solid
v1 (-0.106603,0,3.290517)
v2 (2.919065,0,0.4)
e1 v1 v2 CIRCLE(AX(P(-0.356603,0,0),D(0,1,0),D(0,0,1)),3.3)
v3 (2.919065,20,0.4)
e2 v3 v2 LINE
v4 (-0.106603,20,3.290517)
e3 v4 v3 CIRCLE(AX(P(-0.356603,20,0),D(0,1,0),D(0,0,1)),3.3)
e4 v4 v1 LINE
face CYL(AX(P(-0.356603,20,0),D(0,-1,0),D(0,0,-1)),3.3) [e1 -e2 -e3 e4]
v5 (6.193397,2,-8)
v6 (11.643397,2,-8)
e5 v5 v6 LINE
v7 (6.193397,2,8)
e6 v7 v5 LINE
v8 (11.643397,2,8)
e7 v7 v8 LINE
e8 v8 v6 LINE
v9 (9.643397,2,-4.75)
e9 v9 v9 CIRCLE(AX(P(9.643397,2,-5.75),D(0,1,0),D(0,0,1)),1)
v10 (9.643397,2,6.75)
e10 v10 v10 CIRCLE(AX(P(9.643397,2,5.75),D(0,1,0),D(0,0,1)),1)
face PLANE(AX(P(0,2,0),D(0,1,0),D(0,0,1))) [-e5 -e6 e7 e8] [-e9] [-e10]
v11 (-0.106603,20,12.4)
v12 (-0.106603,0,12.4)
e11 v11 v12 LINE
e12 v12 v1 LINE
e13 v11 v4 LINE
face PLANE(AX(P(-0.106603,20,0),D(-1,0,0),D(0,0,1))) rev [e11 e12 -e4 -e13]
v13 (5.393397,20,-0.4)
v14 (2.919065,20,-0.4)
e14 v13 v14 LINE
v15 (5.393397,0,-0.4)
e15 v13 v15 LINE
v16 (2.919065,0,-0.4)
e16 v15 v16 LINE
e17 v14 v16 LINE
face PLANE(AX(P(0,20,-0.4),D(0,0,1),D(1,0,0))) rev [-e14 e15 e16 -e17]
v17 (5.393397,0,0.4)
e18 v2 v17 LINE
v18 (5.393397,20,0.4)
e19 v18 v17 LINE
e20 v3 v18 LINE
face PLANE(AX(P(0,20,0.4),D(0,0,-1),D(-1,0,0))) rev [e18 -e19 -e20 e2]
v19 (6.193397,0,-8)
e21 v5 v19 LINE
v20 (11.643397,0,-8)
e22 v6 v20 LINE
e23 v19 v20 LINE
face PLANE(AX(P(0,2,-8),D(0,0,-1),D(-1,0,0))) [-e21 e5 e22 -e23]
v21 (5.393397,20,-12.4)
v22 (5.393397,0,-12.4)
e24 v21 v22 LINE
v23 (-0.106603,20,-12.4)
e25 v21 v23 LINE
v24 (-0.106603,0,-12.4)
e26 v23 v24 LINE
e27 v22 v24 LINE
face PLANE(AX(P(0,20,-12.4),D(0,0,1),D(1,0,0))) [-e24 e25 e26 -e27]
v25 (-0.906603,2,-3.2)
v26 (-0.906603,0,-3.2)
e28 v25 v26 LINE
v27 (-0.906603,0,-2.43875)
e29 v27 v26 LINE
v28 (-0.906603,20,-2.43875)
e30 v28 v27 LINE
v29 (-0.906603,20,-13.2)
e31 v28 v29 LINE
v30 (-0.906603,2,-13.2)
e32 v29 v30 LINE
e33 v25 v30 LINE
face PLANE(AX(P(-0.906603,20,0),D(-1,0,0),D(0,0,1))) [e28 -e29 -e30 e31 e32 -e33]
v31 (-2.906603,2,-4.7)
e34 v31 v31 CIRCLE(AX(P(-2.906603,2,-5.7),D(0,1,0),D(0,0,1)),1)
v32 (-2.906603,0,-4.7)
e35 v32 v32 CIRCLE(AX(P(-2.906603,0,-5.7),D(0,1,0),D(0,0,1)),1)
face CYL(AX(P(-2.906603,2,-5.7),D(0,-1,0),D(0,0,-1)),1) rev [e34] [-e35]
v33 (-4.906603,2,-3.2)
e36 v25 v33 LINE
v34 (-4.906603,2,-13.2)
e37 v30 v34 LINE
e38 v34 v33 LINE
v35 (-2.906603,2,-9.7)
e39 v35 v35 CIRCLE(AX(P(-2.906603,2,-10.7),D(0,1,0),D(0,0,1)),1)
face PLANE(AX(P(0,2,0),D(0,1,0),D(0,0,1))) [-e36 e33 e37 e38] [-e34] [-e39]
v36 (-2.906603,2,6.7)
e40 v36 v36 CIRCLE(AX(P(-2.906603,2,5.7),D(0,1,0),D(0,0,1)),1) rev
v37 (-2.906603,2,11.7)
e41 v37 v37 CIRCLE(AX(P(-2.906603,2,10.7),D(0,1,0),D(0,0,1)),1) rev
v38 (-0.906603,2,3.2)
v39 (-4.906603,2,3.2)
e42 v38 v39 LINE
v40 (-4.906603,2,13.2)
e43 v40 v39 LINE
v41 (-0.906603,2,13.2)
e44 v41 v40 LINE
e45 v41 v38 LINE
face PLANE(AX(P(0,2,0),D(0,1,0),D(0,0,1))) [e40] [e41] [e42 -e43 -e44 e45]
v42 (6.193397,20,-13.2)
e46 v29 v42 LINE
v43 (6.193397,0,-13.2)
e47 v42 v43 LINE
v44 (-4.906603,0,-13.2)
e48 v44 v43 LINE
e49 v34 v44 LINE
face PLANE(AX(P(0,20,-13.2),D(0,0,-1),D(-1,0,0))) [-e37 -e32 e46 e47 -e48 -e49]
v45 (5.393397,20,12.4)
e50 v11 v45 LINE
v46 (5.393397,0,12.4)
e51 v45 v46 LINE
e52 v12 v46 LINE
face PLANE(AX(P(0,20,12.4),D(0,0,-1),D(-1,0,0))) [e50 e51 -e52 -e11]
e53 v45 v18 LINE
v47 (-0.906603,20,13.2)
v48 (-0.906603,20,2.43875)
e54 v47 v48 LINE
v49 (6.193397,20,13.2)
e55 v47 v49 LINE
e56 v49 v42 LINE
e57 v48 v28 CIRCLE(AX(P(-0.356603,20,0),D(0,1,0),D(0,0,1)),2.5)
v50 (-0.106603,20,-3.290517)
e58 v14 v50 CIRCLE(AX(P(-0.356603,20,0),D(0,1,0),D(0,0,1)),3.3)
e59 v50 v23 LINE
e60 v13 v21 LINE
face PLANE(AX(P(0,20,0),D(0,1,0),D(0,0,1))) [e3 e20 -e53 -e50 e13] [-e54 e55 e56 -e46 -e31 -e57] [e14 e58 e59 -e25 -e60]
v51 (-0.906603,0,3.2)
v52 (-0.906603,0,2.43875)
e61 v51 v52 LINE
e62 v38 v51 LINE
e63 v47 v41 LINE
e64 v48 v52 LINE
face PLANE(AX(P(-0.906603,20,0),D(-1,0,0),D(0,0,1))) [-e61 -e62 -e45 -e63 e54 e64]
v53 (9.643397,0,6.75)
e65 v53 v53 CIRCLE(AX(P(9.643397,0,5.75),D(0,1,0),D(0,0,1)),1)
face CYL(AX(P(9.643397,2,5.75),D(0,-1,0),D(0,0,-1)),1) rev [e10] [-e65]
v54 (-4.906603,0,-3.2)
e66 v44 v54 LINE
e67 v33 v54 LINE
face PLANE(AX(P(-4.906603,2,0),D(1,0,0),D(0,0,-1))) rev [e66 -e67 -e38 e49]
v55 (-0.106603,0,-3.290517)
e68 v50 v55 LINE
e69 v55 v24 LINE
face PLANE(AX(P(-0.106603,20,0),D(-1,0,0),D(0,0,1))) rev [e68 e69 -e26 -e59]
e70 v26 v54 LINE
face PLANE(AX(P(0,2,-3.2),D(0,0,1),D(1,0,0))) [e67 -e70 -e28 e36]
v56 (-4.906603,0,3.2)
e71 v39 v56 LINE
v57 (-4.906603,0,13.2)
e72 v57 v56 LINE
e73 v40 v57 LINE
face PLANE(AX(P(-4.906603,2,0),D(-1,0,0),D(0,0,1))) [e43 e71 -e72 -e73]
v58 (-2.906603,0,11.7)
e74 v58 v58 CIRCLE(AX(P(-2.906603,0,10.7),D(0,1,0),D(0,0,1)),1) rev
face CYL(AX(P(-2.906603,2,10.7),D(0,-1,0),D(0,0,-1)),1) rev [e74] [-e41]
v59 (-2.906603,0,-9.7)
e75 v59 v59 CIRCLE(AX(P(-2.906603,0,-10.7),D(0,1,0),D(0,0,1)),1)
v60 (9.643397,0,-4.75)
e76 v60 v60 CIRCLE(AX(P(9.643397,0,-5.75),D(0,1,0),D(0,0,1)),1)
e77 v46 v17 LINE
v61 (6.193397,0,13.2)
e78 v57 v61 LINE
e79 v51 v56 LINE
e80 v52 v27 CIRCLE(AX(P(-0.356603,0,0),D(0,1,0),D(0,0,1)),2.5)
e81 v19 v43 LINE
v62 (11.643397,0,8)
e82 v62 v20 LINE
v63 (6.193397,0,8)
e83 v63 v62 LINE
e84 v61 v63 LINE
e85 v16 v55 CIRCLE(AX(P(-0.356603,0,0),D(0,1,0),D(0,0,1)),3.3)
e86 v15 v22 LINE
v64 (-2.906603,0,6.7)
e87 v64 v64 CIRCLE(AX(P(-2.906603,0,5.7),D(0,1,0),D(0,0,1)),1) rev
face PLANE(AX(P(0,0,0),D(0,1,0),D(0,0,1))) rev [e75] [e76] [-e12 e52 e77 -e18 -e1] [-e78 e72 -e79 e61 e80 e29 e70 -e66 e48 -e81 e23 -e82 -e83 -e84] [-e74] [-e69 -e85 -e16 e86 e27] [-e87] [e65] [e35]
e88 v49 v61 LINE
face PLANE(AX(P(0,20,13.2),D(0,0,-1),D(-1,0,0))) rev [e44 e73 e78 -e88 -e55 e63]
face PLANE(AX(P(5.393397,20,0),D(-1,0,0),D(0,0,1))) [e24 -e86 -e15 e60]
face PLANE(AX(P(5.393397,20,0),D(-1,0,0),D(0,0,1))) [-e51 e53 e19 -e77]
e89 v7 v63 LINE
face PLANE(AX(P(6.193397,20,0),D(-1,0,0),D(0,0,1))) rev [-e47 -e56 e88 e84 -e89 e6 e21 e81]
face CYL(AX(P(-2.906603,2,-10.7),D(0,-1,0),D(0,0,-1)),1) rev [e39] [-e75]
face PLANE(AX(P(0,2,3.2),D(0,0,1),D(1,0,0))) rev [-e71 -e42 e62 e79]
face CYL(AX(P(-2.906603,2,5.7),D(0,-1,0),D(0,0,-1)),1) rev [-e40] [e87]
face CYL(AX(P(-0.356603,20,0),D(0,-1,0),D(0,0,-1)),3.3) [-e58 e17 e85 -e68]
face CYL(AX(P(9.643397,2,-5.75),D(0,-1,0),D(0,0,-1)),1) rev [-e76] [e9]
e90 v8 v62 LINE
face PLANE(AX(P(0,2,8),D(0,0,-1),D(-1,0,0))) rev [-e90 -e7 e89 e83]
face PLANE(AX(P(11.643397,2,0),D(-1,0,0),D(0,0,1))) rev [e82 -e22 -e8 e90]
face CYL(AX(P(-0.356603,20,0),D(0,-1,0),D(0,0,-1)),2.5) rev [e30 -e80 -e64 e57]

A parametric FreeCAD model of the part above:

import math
import FreeCAD as App
import Part
import Sketcher

V = App.Vector

doc = App.newDocument("Part")
body = doc.addObject("PartDesign::Body", "Body")

sketch1 = body.newObject("Sketcher::SketchObject", "Sketch")
sketch1.AttachmentSupport = (doc.getObject("XZ_Plane"), [""])
sketch1.MapMode = "FlatFace"
sketch1.addGeometry(Part.ArcOfCircle(Part.Circle(V(-0.4, 0, 0), V(0, 0, 1), 2.5), math.radians(-103), math.radians(0)), False)
sketch1.addGeometry(Part.ArcOfCircle(Part.Circle(V(-0.4, 0, 0), V(0, 0, 1), 2.5), math.radians(0), math.radians(103)), False)
sketch1.addGeometry(Part.LineSegment(V(-0.9, 2.4, 0), V(-0.9, 13.2, 0)), False)
sketch1.addGeometry(Part.LineSegment(V(-0.9, 13.2, 0), V(6.2, 13.2, 0)), False)
sketch1.addGeometry(Part.LineSegment(V(6.2, 13.2, 0), V(6.2, -13.2, 0)), False)
sketch1.addGeometry(Part.LineSegment(V(6.2, -13.2, 0), V(-0.9, -13.2, 0)), False)
sketch1.addGeometry(Part.LineSegment(V(-0.9, -13.2, 0), V(-0.9, -2.4, 0)), False)
sketch1.addGeometry(Part.LineSegment(V(-0.1, -12.4, 0), V(5.4, -12.4, 0)), False)
sketch1.addGeometry(Part.LineSegment(V(5.4, -12.4, 0), V(5.4, -0.4, 0)), False)
sketch1.addGeometry(Part.LineSegment(V(5.4, -0.4, 0), V(2.9, -0.4, 0)), False)
sketch1.addGeometry(Part.ArcOfCircle(Part.Circle(V(-0.4, 0, 0), V(0, 0, 1), 3.3), math.radians(-86), math.radians(-7)), False)
sketch1.addGeometry(Part.LineSegment(V(-0.1, -3.3, 0), V(-0.1, -12.4, 0)), False)
sketch1.addGeometry(Part.LineSegment(V(5.4, 12.4, 0), V(-0.1, 12.4, 0)), False)
sketch1.addGeometry(Part.LineSegment(V(-0.1, 12.4, 0), V(-0.1, 3.3, 0)), False)
sketch1.addGeometry(Part.ArcOfCircle(Part.Circle(V(-0.4, 0, 0), V(0, 0, 1), 3.3), math.radians(7), math.radians(86)), False)
sketch1.addGeometry(Part.LineSegment(V(2.9, 0.4, 0), V(5.4, 0.4, 0)), False)
sketch1.addGeometry(Part.LineSegment(V(5.4, 0.4, 0), V(5.4, 12.4, 0)), False)
sketch1.addConstraint(Sketcher.Constraint("Tangent", 0, 2, 1, 1))
sketch1.addConstraint(Sketcher.Constraint("Coincident", 1, 2, 2, 1))
sketch1.addConstraint(Sketcher.Constraint("Coincident", 2, 2, 3, 1))
sketch1.addConstraint(Sketcher.Constraint("Coincident", 3, 2, 4, 1))
sketch1.addConstraint(Sketcher.Constraint("Coincident", 4, 2, 5, 1))
sketch1.addConstraint(Sketcher.Constraint("Coincident", 5, 2, 6, 1))
sketch1.addConstraint(Sketcher.Constraint("Coincident", 6, 2, 0, 1))
sketch1.addConstraint(Sketcher.Constraint("Coincident", 7, 2, 8, 1))
sketch1.addConstraint(Sketcher.Constraint("Coincident", 8, 2, 9, 1))
sketch1.addConstraint(Sketcher.Constraint("Coincident", 9, 2, 10, 2))
sketch1.addConstraint(Sketcher.Constraint("Coincident", 10, 1, 11, 1))
sketch1.addConstraint(Sketcher.Constraint("Coincident", 11, 2, 7, 1))
sketch1.addConstraint(Sketcher.Constraint("Coincident", 12, 2, 13, 1))
sketch1.addConstraint(Sketcher.Constraint("Coincident", 13, 2, 14, 2))
sketch1.addConstraint(Sketcher.Constraint("Coincident", 14, 1, 15, 1))
sketch1.addConstraint(Sketcher.Constraint("Coincident", 15, 2, 16, 1))
sketch1.addConstraint(Sketcher.Constraint("Coincident", 16, 2, 12, 1))
sketch1.addConstraint(Sketcher.Constraint("Vertical", 2))
sketch1.addConstraint(Sketcher.Constraint("Horizontal", 3))
sketch1.addConstraint(Sketcher.Constraint("Vertical", 4))
sketch1.addConstraint(Sketcher.Constraint("Horizontal", 5))
sketch1.addConstraint(Sketcher.Constraint("Vertical", 6))
sketch1.addConstraint(Sketcher.Constraint("Horizontal", 7))
sketch1.addConstraint(Sketcher.Constraint("Vertical", 8))
sketch1.addConstraint(Sketcher.Constraint("Horizontal", 9))
sketch1.addConstraint(Sketcher.Constraint("Vertical", 11))
sketch1.addConstraint(Sketcher.Constraint("Horizontal", 12))
sketch1.addConstraint(Sketcher.Constraint("Vertical", 13))
sketch1.addConstraint(Sketcher.Constraint("Horizontal", 15))
sketch1.addConstraint(Sketcher.Constraint("Vertical", 16))
sketch1.addConstraint(Sketcher.Constraint("Coincident", 10, 3, 0, 3))
sketch1.addConstraint(Sketcher.Constraint("Coincident", 14, 3, 0, 3))
sketch1.addConstraint(Sketcher.Constraint("Equal", 0, 1))
sketch1.addConstraint(Sketcher.Constraint("Equal", 10, 14))
sketch1.addConstraint(Sketcher.Constraint("Symmetric", 2, 2, 5, 2, -1))
sketch1.addConstraint(Sketcher.Constraint("Symmetric", 11, 2, 12, 2, -1))
sketch1.addConstraint(Sketcher.Constraint("Symmetric", 9, 2, 14, 1, -1))
sketch1.addConstraint(Sketcher.Constraint("PointOnObject", 0, 2, -1))
sketch1.addConstraint(Sketcher.Constraint("Vertical", 8, 2, 15, 2))
sketch1.addConstraint(Sketcher.Constraint("Radius", 0, 2.5))
sketch1.addConstraint(Sketcher.Constraint("Radius", 10, 3.3))
sketch1.addConstraint(Sketcher.Constraint("DistanceY", 8, 1, 8, 2, 12.0))
sketch1.addConstraint(Sketcher.Constraint("DistanceX", 3, 1, 3, 2, 7.1))
sketch1.addConstraint(Sketcher.Constraint("DistanceX", 7, 1, 7, 2, 5.5))
sketch1.addConstraint(Sketcher.Constraint("DistanceY", 4, 2, 4, 1, 26.4))
sketch1.addConstraint(Sketcher.Constraint("DistanceY", 7, 2, -1, 1, 12.4))
sketch1.addConstraint(Sketcher.Constraint("DistanceX", 7, 2, 4, 2, 0.8))
sketch1.addConstraint(Sketcher.Constraint("DistanceX", 1, 2, 10, 3, 0.55))
sketch1.addConstraint(Sketcher.Constraint("DistanceX", 0, 3, -1, 1, 0.356603))
pad1 = body.newObject("PartDesign::Pad", "Pad")
pad1.Profile = sketch1
pad1.Length = 20
pad1.Reversed = True

sketch2 = body.newObject("Sketcher::SketchObject", "Sketch001")
sketch2.AttachmentSupport = (doc.getObject("XZ_Plane"), [""])
sketch2.MapMode = "FlatFace"
sketch2.addGeometry(Part.LineSegment(V(6.2, -8, 0), V(6.2, 8, 0)), False)
sketch2.addGeometry(Part.LineSegment(V(6.2, 8, 0), V(11.6, 8, 0)), False)
sketch2.addGeometry(Part.LineSegment(V(11.6, 8, 0), V(11.6, -8, 0)), False)
sketch2.addGeometry(Part.LineSegment(V(11.6, -8, 0), V(6.2, -8, 0)), False)
sketch2.addGeometry(Part.Circle(V(9.6, 5.8, 0), V(0, 0, 1), 1), False)
sketch2.addGeometry(Part.Circle(V(9.6, -5.8, 0), V(0, 0, 1), 1), False)
sketch2.addGeometry(Part.LineSegment(V(-4.9, -13.2, 0), V(-4.9, -3.2, 0)), False)
sketch2.addGeometry(Part.LineSegment(V(-4.9, -3.2, 0), V(-0.9, -3.2, 0)), False)
sketch2.addGeometry(Part.LineSegment(V(-0.9, -3.2, 0), V(-0.9, -13.2, 0)), False)
sketch2.addGeometry(Part.LineSegment(V(-0.9, -13.2, 0), V(-4.9, -13.2, 0)), False)
sketch2.addGeometry(Part.Circle(V(-2.9, -5.7, 0), V(0, 0, 1), 1), False)
sketch2.addGeometry(Part.Circle(V(-2.9, -10.7, 0), V(0, 0, 1), 1), False)
sketch2.addGeometry(Part.LineSegment(V(-4.9, 3.2, 0), V(-4.9, 13.2, 0)), False)
sketch2.addGeometry(Part.LineSegment(V(-4.9, 13.2, 0), V(-0.9, 13.2, 0)), False)
sketch2.addGeometry(Part.LineSegment(V(-0.9, 13.2, 0), V(-0.9, 3.2, 0)), False)
sketch2.addGeometry(Part.LineSegment(V(-0.9, 3.2, 0), V(-4.9, 3.2, 0)), False)
sketch2.addGeometry(Part.Circle(V(-2.9, 10.7, 0), V(0, 0, 1), 1), False)
sketch2.addGeometry(Part.Circle(V(-2.9, 5.7, 0), V(0, 0, 1), 1), False)
sketch2.addConstraint(Sketcher.Constraint("Coincident", 0, 2, 1, 1))
sketch2.addConstraint(Sketcher.Constraint("Coincident", 1, 2, 2, 1))
sketch2.addConstraint(Sketcher.Constraint("Coincident", 2, 2, 3, 1))
sketch2.addConstraint(Sketcher.Constraint("Coincident", 3, 2, 0, 1))
sketch2.addConstraint(Sketcher.Constraint("Coincident", 6, 2, 7, 1))
sketch2.addConstraint(Sketcher.Constraint("Coincident", 7, 2, 8, 1))
sketch2.addConstraint(Sketcher.Constraint("Coincident", 8, 2, 9, 1))
sketch2.addConstraint(Sketcher.Constraint("Coincident", 9, 2, 6, 1))
sketch2.addConstraint(Sketcher.Constraint("Coincident", 12, 2, 13, 1))
sketch2.addConstraint(Sketcher.Constraint("Coincident", 13, 2, 14, 1))
sketch2.addConstraint(Sketcher.Constraint("Coincident", 14, 2, 15, 1))
sketch2.addConstraint(Sketcher.Constraint("Coincident", 15, 2, 12, 1))
sketch2.addConstraint(Sketcher.Constraint("Vertical", 0))
sketch2.addConstraint(Sketcher.Constraint("Horizontal", 1))
sketch2.addConstraint(Sketcher.Constraint("Vertical", 2))
sketch2.addConstraint(Sketcher.Constraint("Horizontal", 3))
sketch2.addConstraint(Sketcher.Constraint("Vertical", 6))
sketch2.addConstraint(Sketcher.Constraint("Horizontal", 7))
sketch2.addConstraint(Sketcher.Constraint("Vertical", 8))
sketch2.addConstraint(Sketcher.Constraint("Horizontal", 9))
sketch2.addConstraint(Sketcher.Constraint("Vertical", 12))
sketch2.addConstraint(Sketcher.Constraint("Horizontal", 13))
sketch2.addConstraint(Sketcher.Constraint("Vertical", 14))
sketch2.addConstraint(Sketcher.Constraint("Horizontal", 15))
sketch2.addConstraint(Sketcher.Constraint("Equal", 4, 5))
sketch2.addConstraint(Sketcher.Constraint("Equal", 5, 10))
sketch2.addConstraint(Sketcher.Constraint("Equal", 10, 11))
sketch2.addConstraint(Sketcher.Constraint("Equal", 11, 16))
sketch2.addConstraint(Sketcher.Constraint("Equal", 16, 17))
sketch2.addConstraint(Sketcher.Constraint("Symmetric", 4, 3, 5, 3, -1))
sketch2.addConstraint(Sketcher.Constraint("Symmetric", 11, 3, 16, 3, -1))
sketch2.addConstraint(Sketcher.Constraint("Symmetric", 10, 3, 17, 3, -1))
sketch2.addConstraint(Sketcher.Constraint("Symmetric", 9, 2, 12, 2, -1))
sketch2.addConstraint(Sketcher.Constraint("Symmetric", 7, 2, 14, 2, -1))
sketch2.addConstraint(Sketcher.Constraint("Vertical", 10, 3, 11, 3))
sketch2.addConstraint(Sketcher.Constraint("Diameter", 4, 2.0))
sketch2.addConstraint(Sketcher.Constraint("DistanceX", 7, 1, 7, 2, 4.0))
sketch2.addConstraint(Sketcher.Constraint("DistanceY", 0, 1, 0, 2, 16.0))
sketch2.addConstraint(Sketcher.Constraint("DistanceY", 6, 1, 6, 2, 10.0))
sketch2.addConstraint(Sketcher.Constraint("DistanceY", -1, 1, 0, 2, 8.0))
sketch2.addConstraint(Sketcher.Constraint("DistanceY", 11, 3, 10, 3, 5.0))
sketch2.addConstraint(Sketcher.Constraint("DistanceX", 4, 3, 1, 2, 2.0))
sketch2.addConstraint(Sketcher.Constraint("DistanceX", 6, 2, 10, 3, 2.0))
sketch2.addConstraint(Sketcher.Constraint("DistanceX", 1, 1, 1, 2, 5.45))
sketch2.addConstraint(Sketcher.Constraint("DistanceY", 10, 3, -1, 1, 5.7))
sketch2.addConstraint(Sketcher.Constraint("DistanceY", 6, 2, -1, 1, 3.2))
sketch2.addConstraint(Sketcher.Constraint("DistanceY", 5, 3, 4, 3, 11.5))
sketch2.addConstraint(Sketcher.Constraint("DistanceX", 17, 3, 0, 2, 9.1))
sketch2.addConstraint(Sketcher.Constraint("DistanceX", -1, 1, 4, 3, 9.643397))
pad2 = body.newObject("PartDesign::Pad", "Pad001")
pad2.Profile = sketch2
pad2.Length = 2
pad2.Reversed = True

doc.recompute()
